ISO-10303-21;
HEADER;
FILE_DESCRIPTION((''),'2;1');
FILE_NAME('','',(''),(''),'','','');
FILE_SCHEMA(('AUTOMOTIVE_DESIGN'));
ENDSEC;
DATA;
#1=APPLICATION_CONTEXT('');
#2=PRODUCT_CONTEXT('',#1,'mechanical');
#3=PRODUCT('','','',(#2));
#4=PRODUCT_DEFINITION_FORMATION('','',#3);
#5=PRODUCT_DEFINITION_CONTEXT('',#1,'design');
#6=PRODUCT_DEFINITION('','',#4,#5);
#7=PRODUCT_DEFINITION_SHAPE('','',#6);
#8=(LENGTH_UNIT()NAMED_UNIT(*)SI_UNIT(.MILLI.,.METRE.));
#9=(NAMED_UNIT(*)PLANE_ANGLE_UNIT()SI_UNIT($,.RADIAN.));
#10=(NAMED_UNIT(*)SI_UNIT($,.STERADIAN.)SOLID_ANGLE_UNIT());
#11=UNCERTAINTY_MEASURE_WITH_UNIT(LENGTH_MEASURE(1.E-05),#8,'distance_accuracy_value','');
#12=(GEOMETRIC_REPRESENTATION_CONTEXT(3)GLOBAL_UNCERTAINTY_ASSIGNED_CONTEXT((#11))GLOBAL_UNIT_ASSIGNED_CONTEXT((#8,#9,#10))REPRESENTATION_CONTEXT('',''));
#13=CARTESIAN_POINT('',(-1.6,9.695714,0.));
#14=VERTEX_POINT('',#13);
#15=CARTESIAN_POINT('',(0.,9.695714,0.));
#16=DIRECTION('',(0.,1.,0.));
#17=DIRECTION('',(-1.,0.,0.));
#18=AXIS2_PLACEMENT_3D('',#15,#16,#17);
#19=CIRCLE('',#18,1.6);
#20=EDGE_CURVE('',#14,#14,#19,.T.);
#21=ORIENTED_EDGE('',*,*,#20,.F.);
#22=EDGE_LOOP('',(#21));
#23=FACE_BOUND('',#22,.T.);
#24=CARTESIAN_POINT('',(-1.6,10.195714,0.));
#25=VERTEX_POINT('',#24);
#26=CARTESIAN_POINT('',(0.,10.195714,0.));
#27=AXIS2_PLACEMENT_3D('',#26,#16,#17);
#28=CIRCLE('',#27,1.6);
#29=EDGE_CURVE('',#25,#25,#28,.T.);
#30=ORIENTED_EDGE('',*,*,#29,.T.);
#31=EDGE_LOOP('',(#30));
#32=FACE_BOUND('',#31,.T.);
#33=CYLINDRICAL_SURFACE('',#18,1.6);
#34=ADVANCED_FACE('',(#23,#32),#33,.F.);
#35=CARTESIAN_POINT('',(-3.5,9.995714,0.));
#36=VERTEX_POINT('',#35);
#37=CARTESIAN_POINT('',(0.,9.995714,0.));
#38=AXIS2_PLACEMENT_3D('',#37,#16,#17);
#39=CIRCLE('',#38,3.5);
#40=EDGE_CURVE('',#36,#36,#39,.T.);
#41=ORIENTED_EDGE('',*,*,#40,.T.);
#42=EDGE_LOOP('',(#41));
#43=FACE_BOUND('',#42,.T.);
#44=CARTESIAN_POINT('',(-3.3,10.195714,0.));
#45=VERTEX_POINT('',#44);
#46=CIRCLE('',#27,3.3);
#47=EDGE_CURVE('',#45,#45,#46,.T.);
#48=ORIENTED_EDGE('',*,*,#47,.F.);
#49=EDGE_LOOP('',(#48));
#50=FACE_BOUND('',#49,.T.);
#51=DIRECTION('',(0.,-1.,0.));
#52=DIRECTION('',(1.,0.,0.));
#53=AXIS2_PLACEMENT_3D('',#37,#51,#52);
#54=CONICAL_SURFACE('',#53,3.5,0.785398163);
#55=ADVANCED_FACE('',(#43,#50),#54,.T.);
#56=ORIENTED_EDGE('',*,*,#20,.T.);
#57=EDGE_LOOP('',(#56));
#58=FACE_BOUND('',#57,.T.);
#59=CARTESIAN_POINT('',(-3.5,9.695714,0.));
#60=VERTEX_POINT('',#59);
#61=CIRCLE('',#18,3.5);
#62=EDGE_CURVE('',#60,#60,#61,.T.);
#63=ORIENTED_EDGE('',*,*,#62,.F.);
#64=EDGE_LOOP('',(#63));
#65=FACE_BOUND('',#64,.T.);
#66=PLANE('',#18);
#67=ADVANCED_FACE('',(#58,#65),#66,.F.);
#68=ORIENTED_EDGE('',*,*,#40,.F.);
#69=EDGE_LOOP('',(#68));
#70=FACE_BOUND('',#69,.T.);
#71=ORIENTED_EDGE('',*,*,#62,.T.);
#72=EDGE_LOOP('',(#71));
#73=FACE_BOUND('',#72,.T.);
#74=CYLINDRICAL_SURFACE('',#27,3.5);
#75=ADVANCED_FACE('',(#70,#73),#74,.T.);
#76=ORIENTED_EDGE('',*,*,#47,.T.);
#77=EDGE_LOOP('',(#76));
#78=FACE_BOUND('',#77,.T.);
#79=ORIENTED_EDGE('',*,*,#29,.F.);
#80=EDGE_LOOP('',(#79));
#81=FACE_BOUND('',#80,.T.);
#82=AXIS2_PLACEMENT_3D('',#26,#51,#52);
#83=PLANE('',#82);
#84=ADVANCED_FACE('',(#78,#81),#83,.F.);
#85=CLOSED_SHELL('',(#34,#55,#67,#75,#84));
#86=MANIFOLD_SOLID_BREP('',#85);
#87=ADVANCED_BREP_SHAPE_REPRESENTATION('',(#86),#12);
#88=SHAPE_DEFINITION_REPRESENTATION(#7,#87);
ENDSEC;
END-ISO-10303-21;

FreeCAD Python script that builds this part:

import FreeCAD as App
import Part
import Sketcher
from FreeCAD import Vector
Q = App.Units.Quantity


def add_polygon(sketch, points):
    """Adds a closed chain of lines whose ends are joined by coincident constraints."""
    first, n = sketch.GeometryCount, len(points)
    for a, b in zip(points, points[1:] + points[:1]):
        sketch.addGeometry(Part.LineSegment(App.Vector(*a, 0), App.Vector(*b, 0)), False)
    for i in range(n):
        sketch.addConstraint(Sketcher.Constraint("Coincident", first + i, 2, first + (i + 1) % n, 1))

doc = App.newDocument("Part")
body = doc.addObject("PartDesign::Body", "Body")

# Sketch on XY plane
sketch1 = body.newObject("Sketcher::SketchObject", "Sketch")
sketch1.AttachmentSupport = (doc.getObject("XY_Plane"), [""])
sketch1.MapMode = "FlatFace"
add_polygon(sketch1, [(-3.3, 10.2), (-3.5, 10), (-3.5, 9.7), (0, 9.7), (0, 10.2)])  # lines 0-4
sketch1.addConstraint(Sketcher.Constraint("Vertical", 1))
sketch1.addConstraint(Sketcher.Constraint("Horizontal", 2))
sketch1.addConstraint(Sketcher.Constraint("Vertical", 3))
sketch1.addConstraint(Sketcher.Constraint("Horizontal", 4))
sketch1.addConstraint(Sketcher.Constraint("PointOnObject", 2, 2, -2))
sketch1.addConstraint(Sketcher.Constraint("Angle", 0, Q("-135 deg")))
sketch1.addConstraint(Sketcher.Constraint("DistanceX", 2, 1, 2, 2, Q("3.5 mm")))
sketch1.addConstraint(Sketcher.Constraint("DistanceX", 4, 2, 4, 1, Q("3.3 mm")))
sketch1.addConstraint(Sketcher.Constraint("DistanceY", 1, 2, 1, 1, Q("0.3 mm")))
sketch1.addConstraint(Sketcher.Constraint("DistanceY", -1, 1, 0, 2, Q("9.995714 mm")))
revolution = body.newObject("PartDesign::Revolution", "Revolution")
revolution.Profile = sketch1
revolution.ReferenceAxis = (sketch1, ["V_Axis"])
revolution.Angle = 360

# Sketch on XZ plane
sketch2 = body.newObject("Sketcher::SketchObject", "Sketch001")
sketch2.AttachmentSupport = (doc.getObject("XZ_Plane"), [""])
sketch2.MapMode = "FlatFace"
sketch2.AttachmentOffset = App.Placement(Vector(0, 0, -10.195714), App.Rotation())
sketch2.addGeometry(Part.Circle(Vector(0, 0, 0), Vector(0, 0, 1), 1.6), False)
sketch2.addConstraint(Sketcher.Constraint("Coincident", 0, 3, -1, 1))
sketch2.addConstraint(Sketcher.Constraint("Diameter", 0, Q("3.2 mm")))
pocket1 = body.newObject("PartDesign::Pocket", "Pocket")
pocket1.Profile = sketch2
pocket1.Type = "ThroughAll"
pocket1.Reversed = True

doc.recompute()
